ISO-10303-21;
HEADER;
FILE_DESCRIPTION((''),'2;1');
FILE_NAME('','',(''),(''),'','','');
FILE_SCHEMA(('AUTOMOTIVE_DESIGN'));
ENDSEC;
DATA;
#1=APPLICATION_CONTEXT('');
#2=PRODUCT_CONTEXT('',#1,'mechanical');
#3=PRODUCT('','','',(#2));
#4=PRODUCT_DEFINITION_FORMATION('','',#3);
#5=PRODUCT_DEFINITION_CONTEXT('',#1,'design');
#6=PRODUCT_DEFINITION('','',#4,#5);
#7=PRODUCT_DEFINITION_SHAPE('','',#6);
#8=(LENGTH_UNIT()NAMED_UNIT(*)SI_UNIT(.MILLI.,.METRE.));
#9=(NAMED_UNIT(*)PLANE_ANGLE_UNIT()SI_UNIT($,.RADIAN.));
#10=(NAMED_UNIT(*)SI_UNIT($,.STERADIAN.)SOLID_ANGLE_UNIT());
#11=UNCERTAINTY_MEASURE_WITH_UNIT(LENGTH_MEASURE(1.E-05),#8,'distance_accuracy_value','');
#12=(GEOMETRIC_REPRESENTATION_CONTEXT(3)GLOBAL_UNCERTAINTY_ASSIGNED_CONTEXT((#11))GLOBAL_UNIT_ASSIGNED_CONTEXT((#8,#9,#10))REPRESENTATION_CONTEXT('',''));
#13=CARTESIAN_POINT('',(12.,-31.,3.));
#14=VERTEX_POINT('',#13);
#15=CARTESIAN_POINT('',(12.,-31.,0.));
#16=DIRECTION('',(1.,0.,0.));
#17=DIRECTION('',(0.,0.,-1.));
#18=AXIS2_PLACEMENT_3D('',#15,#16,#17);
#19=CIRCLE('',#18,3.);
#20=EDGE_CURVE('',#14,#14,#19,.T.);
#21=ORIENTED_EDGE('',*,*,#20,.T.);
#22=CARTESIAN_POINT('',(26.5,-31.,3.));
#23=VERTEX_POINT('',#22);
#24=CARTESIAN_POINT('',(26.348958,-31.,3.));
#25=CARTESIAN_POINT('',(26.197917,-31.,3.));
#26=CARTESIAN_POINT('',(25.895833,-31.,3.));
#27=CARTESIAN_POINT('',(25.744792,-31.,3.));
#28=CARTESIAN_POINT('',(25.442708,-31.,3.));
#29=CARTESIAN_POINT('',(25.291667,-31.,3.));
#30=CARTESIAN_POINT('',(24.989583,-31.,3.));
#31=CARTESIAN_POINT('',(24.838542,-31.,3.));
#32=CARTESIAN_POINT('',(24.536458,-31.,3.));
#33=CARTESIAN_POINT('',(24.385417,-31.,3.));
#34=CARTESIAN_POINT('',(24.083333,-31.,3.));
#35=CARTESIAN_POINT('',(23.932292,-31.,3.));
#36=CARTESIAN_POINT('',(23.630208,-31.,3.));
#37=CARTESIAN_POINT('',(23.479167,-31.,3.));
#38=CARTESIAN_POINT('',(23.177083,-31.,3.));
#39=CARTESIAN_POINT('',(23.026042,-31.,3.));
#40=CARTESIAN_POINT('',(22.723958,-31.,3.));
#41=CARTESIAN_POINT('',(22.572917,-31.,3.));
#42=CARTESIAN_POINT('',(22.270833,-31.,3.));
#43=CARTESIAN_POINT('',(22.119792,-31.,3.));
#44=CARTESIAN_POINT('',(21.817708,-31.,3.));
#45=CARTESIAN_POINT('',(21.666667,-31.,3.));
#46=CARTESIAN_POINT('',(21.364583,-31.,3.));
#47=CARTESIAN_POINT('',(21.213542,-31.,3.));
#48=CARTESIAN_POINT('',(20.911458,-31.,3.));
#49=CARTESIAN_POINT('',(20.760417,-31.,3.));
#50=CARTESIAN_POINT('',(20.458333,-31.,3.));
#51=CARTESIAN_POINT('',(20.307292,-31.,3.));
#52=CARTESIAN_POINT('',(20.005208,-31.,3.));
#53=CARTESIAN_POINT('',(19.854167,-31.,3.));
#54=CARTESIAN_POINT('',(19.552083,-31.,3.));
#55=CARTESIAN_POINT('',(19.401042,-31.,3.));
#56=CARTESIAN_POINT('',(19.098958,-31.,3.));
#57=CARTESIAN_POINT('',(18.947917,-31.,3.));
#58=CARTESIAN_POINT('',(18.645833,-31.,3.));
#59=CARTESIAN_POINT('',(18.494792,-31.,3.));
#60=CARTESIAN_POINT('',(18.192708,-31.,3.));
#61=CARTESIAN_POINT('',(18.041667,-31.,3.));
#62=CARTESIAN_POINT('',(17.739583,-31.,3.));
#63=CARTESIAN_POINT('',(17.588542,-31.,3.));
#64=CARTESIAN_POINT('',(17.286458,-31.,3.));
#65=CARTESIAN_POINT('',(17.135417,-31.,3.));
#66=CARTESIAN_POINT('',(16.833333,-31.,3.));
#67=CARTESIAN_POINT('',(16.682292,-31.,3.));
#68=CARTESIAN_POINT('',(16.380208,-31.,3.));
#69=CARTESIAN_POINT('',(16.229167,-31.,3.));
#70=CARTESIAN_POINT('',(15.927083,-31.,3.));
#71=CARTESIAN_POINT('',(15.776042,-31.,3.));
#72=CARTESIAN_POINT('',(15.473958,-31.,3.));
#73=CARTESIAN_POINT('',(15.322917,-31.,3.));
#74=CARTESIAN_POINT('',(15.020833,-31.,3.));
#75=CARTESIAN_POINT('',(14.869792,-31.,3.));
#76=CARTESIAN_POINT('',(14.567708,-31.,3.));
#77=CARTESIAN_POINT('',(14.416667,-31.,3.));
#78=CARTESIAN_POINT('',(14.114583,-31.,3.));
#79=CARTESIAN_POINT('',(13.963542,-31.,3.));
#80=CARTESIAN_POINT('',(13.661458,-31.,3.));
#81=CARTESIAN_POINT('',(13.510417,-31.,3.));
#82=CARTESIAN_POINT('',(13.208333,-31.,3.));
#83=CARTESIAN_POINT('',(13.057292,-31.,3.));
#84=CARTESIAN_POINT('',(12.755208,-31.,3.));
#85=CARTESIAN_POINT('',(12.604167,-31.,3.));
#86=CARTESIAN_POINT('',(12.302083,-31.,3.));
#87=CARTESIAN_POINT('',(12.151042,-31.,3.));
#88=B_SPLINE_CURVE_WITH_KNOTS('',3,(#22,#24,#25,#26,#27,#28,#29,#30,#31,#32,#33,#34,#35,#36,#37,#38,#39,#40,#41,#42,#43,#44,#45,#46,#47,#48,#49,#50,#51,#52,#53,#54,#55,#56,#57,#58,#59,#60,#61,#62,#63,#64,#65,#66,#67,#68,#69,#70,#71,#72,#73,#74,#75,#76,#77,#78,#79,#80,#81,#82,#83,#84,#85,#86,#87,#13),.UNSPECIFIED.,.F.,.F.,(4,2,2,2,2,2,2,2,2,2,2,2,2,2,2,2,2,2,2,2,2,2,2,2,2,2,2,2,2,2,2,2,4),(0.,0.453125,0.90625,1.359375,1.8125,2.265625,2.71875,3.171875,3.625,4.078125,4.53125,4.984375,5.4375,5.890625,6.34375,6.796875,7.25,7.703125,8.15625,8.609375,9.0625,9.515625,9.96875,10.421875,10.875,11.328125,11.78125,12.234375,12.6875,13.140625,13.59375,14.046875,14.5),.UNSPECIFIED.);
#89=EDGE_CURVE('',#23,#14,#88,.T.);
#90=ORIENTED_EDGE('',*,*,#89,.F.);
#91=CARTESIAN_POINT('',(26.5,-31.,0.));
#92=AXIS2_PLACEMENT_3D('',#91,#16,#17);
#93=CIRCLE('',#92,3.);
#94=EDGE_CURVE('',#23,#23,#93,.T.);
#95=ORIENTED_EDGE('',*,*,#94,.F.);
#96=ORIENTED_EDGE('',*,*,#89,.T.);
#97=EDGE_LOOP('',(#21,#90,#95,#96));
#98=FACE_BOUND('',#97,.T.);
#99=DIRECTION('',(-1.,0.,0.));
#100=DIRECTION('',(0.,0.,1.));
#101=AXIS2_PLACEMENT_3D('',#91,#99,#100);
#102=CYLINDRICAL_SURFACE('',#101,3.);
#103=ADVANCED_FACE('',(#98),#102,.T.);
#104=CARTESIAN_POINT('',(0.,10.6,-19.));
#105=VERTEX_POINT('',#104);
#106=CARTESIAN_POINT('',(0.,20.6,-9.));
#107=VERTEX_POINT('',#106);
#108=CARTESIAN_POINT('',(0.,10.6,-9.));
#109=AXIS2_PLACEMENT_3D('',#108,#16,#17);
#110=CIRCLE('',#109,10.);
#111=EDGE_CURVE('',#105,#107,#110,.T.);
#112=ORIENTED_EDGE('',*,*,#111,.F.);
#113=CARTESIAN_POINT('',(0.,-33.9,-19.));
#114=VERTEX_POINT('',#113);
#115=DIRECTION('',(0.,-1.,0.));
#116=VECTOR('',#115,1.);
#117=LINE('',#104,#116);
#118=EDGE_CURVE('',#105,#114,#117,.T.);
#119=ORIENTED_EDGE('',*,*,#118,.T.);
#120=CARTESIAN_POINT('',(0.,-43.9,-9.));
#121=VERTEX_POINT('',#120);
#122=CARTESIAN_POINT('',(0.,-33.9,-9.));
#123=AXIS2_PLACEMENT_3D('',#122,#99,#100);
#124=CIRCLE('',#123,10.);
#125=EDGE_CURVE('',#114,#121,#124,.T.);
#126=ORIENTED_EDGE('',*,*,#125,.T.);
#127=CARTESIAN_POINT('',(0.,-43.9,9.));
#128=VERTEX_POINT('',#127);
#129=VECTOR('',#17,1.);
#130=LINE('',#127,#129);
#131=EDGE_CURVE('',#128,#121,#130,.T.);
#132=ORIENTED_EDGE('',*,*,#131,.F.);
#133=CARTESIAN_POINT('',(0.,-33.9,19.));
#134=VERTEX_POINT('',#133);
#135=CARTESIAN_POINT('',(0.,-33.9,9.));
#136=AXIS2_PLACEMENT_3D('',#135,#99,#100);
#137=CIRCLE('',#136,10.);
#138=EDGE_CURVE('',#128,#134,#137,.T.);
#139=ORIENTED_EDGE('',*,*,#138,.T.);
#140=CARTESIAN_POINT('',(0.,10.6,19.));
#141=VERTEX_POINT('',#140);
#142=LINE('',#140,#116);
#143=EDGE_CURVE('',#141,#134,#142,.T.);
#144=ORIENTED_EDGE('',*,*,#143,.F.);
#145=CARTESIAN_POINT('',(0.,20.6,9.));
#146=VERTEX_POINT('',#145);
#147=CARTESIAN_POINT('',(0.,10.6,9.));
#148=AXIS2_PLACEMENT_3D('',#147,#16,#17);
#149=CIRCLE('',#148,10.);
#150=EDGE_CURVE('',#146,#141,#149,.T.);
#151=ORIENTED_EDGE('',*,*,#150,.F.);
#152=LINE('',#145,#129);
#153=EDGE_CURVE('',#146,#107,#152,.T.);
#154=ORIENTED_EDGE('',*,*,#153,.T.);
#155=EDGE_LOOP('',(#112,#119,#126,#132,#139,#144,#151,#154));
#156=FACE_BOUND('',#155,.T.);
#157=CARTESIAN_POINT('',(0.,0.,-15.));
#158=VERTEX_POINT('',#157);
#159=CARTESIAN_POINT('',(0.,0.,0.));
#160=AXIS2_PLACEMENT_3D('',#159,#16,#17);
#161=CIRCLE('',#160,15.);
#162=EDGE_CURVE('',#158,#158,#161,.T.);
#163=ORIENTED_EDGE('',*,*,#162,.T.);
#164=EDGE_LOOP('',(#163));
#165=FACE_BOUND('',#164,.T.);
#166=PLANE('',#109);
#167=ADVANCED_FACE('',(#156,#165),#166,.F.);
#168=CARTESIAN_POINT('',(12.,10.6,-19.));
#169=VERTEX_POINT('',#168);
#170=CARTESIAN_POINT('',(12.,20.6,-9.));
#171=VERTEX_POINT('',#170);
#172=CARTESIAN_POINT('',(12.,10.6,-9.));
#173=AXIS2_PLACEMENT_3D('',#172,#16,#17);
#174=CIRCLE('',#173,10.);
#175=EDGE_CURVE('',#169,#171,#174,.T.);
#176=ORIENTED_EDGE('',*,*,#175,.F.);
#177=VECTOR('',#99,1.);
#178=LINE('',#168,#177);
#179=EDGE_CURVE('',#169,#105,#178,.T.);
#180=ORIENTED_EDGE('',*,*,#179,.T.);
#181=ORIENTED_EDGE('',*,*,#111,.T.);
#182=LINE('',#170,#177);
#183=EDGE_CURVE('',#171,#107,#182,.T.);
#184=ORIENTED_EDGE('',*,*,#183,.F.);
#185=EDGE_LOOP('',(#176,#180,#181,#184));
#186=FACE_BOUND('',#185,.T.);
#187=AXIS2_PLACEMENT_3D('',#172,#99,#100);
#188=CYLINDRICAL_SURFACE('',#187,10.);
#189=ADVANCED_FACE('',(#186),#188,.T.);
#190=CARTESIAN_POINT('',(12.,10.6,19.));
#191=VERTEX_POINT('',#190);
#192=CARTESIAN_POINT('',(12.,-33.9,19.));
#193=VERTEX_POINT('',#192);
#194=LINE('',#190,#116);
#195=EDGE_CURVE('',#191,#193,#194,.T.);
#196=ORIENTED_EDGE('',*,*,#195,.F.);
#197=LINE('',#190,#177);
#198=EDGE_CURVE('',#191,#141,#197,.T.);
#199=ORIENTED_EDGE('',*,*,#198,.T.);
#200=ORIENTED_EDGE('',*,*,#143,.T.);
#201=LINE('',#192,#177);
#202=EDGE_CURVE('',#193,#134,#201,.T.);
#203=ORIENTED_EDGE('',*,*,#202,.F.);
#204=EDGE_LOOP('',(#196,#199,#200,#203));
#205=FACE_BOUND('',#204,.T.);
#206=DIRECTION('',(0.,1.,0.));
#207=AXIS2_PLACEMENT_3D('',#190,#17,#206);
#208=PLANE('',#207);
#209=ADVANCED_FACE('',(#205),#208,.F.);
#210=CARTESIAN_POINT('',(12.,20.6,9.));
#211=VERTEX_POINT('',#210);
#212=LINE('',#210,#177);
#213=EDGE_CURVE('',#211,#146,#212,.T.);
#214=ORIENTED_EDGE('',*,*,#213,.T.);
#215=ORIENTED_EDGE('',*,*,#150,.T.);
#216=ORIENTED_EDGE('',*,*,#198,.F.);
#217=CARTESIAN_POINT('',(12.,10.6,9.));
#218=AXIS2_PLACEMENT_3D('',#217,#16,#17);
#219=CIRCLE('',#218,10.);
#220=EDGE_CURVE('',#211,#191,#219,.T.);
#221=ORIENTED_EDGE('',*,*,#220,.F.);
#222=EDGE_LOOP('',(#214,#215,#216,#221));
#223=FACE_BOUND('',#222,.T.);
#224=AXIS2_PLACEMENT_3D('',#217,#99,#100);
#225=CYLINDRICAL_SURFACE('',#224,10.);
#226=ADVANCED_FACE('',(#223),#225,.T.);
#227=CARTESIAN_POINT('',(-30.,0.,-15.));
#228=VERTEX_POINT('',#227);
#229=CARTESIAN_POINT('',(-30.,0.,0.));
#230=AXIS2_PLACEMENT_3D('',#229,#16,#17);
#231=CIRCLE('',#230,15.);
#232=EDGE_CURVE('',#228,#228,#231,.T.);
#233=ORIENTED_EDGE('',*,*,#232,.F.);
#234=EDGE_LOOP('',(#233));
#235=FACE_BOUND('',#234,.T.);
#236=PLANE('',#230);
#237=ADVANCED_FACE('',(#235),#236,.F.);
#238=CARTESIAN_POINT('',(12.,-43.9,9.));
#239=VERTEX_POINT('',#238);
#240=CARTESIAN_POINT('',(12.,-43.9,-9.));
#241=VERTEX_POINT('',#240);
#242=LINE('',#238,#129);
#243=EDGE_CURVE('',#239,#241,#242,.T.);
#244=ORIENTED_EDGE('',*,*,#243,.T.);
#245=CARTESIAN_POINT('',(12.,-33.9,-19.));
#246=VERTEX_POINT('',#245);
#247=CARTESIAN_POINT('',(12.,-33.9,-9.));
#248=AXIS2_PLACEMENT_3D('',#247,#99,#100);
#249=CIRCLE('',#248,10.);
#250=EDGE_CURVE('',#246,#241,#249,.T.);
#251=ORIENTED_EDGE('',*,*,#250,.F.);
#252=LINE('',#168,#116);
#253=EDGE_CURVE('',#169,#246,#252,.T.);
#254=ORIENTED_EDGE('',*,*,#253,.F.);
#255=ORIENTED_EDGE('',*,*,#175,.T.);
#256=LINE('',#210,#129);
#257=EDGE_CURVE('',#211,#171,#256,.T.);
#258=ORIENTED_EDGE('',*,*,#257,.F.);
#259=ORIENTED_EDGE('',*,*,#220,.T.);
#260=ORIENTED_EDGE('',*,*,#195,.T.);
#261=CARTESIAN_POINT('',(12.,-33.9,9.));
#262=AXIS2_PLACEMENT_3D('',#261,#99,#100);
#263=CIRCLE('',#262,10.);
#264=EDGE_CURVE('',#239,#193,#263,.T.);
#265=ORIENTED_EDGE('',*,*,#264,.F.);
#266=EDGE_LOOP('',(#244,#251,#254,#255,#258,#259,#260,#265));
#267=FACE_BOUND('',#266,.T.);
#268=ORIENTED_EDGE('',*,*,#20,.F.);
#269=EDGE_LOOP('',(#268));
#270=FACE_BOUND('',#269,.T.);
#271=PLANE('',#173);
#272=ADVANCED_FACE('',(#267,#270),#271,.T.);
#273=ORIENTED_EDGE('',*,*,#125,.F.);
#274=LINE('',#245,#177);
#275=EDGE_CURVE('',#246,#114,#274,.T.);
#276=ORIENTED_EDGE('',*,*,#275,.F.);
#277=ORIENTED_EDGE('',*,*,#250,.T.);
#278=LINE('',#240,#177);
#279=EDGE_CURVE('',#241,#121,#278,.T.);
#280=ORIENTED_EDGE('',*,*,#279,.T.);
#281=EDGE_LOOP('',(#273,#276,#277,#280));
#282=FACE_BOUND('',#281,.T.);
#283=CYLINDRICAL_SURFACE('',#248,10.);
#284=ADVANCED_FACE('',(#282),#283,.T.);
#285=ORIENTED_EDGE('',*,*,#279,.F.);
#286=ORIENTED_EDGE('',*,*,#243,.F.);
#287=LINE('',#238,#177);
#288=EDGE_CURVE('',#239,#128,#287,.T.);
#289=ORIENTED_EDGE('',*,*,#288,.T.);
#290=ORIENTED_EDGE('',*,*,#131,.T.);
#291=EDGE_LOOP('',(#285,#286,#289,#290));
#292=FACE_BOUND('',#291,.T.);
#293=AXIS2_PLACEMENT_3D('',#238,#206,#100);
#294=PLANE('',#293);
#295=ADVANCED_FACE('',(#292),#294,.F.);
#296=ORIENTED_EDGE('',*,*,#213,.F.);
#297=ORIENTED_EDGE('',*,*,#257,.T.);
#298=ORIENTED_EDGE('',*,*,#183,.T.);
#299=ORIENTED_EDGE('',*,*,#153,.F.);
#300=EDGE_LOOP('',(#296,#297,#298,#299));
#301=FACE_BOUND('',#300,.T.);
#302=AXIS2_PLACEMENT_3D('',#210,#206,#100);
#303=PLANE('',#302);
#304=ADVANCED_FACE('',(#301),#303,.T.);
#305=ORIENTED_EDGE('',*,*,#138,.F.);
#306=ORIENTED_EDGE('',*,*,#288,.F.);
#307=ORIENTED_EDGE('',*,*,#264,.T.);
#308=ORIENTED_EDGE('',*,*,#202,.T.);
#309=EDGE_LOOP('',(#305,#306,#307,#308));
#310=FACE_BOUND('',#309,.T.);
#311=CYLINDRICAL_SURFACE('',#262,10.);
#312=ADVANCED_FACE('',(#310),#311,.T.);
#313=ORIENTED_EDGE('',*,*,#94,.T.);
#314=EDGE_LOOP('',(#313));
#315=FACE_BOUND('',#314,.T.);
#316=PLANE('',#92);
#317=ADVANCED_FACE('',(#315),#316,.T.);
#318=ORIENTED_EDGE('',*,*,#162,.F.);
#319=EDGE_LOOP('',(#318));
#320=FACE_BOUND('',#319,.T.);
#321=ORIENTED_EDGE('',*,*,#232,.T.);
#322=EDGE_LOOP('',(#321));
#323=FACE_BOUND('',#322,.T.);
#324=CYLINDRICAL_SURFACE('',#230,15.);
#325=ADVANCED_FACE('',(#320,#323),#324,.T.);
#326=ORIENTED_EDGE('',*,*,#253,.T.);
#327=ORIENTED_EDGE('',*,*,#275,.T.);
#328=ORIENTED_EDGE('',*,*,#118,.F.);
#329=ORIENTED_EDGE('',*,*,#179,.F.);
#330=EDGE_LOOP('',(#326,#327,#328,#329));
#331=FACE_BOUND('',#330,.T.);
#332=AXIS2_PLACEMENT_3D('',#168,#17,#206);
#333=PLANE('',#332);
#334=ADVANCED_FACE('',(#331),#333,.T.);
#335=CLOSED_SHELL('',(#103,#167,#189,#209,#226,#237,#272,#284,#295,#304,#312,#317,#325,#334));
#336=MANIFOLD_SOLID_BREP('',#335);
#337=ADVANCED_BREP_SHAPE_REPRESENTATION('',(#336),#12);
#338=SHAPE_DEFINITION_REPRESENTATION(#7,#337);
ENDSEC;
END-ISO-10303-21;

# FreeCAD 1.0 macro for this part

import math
import FreeCAD as App
import Part
import Sketcher
Q = App.Units.Quantity

doc = App.newDocument("Part")
body = doc.addObject("PartDesign::Body", "Body")

sketch1 = body.newObject("Sketcher::SketchObject", "Sketch")
sketch1.AttachmentSupport = (doc.getObject("YZ_Plane"), [""])
sketch1.MapMode = "FlatFace"
sketch1.addGeometry(Part.Circle(App.Vector(0, 0, 0), App.Vector(0, 0, 1), 15), False)
sketch1.addConstraint(Sketcher.Constraint("Coincident", 0, 3, -1, 1))
sketch1.addConstraint(Sketcher.Constraint("Diameter", 0, Q("30 mm")))
pad1 = body.newObject("PartDesign::Pad", "Pad")
pad1.Profile = sketch1
pad1.Length = 30
pad1.Reversed = True

sketch2 = body.newObject("Sketcher::SketchObject", "Sketch001")
sketch2.AttachmentSupport = (doc.getObject("YZ_Plane"), [""])
sketch2.MapMode = "FlatFace"
sketch2.addGeometry(Part.LineSegment(App.Vector(-33.9, -19, 0), App.Vector(10.6, -19, 0)), False)
sketch2.addGeometry(Part.ArcOfCircle(Part.Circle(App.Vector(10.6, -9, 0), App.Vector(0, 0, 1), 10), math.radians(-90), math.radians(0)), False)
sketch2.addGeometry(Part.LineSegment(App.Vector(20.6, -9, 0), App.Vector(20.6, 9, 0)), False)
sketch2.addGeometry(Part.ArcOfCircle(Part.Circle(App.Vector(10.6, 9, 0), App.Vector(0, 0, 1), 10), math.radians(0), math.radians(90)), False)
sketch2.addGeometry(Part.LineSegment(App.Vector(10.6, 19, 0), App.Vector(-33.9, 19, 0)), False)
sketch2.addGeometry(Part.ArcOfCircle(Part.Circle(App.Vector(-33.9, 9, 0), App.Vector(0, 0, 1), 10), math.radians(90), math.radians(180)), False)
sketch2.addGeometry(Part.LineSegment(App.Vector(-43.9, 9, 0), App.Vector(-43.9, -9, 0)), False)
sketch2.addGeometry(Part.ArcOfCircle(Part.Circle(App.Vector(-33.9, -9, 0), App.Vector(0, 0, 1), 10), math.radians(180), math.radians(270)), False)
sketch2.addConstraint(Sketcher.Constraint("Tangent", 0, 2, 1, 1))
sketch2.addConstraint(Sketcher.Constraint("Tangent", 1, 2, 2, 1))
sketch2.addConstraint(Sketcher.Constraint("Tangent", 2, 2, 3, 1))
sketch2.addConstraint(Sketcher.Constraint("Tangent", 3, 2, 4, 1))
sketch2.addConstraint(Sketcher.Constraint("Tangent", 4, 2, 5, 1))
sketch2.addConstraint(Sketcher.Constraint("Tangent", 5, 2, 6, 1))
sketch2.addConstraint(Sketcher.Constraint("Tangent", 6, 2, 7, 1))
sketch2.addConstraint(Sketcher.Constraint("Tangent", 7, 2, 0, 1))
sketch2.addConstraint(Sketcher.Constraint("Horizontal", 0))
sketch2.addConstraint(Sketcher.Constraint("Vertical", 2))
sketch2.addConstraint(Sketcher.Constraint("Horizontal", 4))
sketch2.addConstraint(Sketcher.Constraint("Vertical", 6))
sketch2.addConstraint(Sketcher.Constraint("Equal", 1, 3))
sketch2.addConstraint(Sketcher.Constraint("Equal", 3, 5))
sketch2.addConstraint(Sketcher.Constraint("Equal", 5, 7))
sketch2.addConstraint(Sketcher.Constraint("Radius", 1, Q("10 mm")))
sketch2.addConstraint(Sketcher.Constraint("DistanceY", 2, 1, 2, 2, Q("18 mm")))
sketch2.addConstraint(Sketcher.Constraint("DistanceX", 0, 1, 0, 2, Q("44.5 mm")))
sketch2.addConstraint(Sketcher.Constraint("DistanceY", 1, 3, -1, 1, Q("9 mm")))
sketch2.addConstraint(Sketcher.Constraint("DistanceX", -1, 1, 1, 3, Q("10.6 mm")))
pad2 = body.newObject("PartDesign::Pad", "Pad001")
pad2.Profile = sketch2
pad2.Length = 12

sketch3 = body.newObject("Sketcher::SketchObject", "Sketch002")
sketch3.AttachmentSupport = (doc.getObject("YZ_Plane"), [""])
sketch3.MapMode = "FlatFace"
sketch3.AttachmentOffset = App.Placement(App.Vector(0, 0, 12), App.Rotation())
sketch3.addGeometry(Part.Circle(App.Vector(-31, 0, 0), App.Vector(0, 0, 1), 3), False)
sketch3.addConstraint(Sketcher.Constraint("PointOnObject", 0, 3, -1))
sketch3.addConstraint(Sketcher.Constraint("Diameter", 0, Q("6 mm")))
sketch3.addConstraint(Sketcher.Constraint("DistanceX", 0, 3, -1, 1, Q("31 mm")))
pad3 = body.newObject("PartDesign::Pad", "Pad002")
pad3.Profile = sketch3
pad3.Length = 14.5

doc.recompute()
